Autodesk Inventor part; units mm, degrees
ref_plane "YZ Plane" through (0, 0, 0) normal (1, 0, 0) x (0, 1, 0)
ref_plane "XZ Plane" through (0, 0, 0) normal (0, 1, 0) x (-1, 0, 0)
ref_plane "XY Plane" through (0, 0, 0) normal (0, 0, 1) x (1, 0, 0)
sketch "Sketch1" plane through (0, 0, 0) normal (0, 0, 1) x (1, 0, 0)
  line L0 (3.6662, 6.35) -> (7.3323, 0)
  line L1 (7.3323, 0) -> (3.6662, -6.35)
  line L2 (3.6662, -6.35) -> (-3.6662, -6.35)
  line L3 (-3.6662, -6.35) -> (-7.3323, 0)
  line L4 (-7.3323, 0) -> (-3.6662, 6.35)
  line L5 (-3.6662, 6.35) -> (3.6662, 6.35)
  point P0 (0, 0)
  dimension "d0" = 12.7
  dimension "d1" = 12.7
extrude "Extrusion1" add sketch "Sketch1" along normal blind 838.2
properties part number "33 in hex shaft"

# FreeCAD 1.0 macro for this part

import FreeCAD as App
import Part
import Sketcher
Q = App.Units.Quantity


def add_polygon(sketch, points):
    """Adds a closed chain of lines whose ends are joined by coincident constraints."""
    first, n = sketch.GeometryCount, len(points)
    for a, b in zip(points, points[1:] + points[:1]):
        sketch.addGeometry(Part.LineSegment(App.Vector(*a, 0), App.Vector(*b, 0)), False)
    for i in range(n):
        sketch.addConstraint(Sketcher.Constraint("Coincident", first + i, 2, first + (i + 1) % n, 1))

doc = App.newDocument("Part")
body = doc.addObject("PartDesign::Body", "Body")

sketch1 = body.newObject("Sketcher::SketchObject", "Sketch")
sketch1.AttachmentSupport = (doc.getObject("XY_Plane"), [""])
sketch1.MapMode = "FlatFace"
add_polygon(sketch1, [(7, 0), (4, 6), (-4, 6), (-7, 0), (-4, -6), (4, -6)])
sketch1.addConstraint(Sketcher.Constraint("Horizontal", 1))
sketch1.addConstraint(Sketcher.Constraint("Horizontal", 4))
sketch1.addConstraint(Sketcher.Constraint("Symmetric", 0, 2, 3, 2, -1, 1))
sketch1.addConstraint(Sketcher.Constraint("Symmetric", 2, 2, 5, 2, -1, 1))
sketch1.addConstraint(Sketcher.Constraint("PointOnObject", 2, 2, -1))
sketch1.addConstraint(Sketcher.Constraint("Parallel", 2, 5))
sketch1.addConstraint(Sketcher.Constraint("Vertical", 1, 2, 3, 2))
sketch1.addConstraint(Sketcher.Constraint("DistanceY", 3, 2, 1, 2, Q("0.5 in")))
sketch1.addConstraint(Sketcher.Constraint("Angle", 0, Q("119.9995 deg")))
sketch1.addConstraint(Sketcher.Constraint("DistanceX", 2, 2, 0, 2, Q("0.433 in")))
pad1 = body.newObject("PartDesign::Pad", "Pad")
pad1.Profile = sketch1
pad1.Length = Q("33 in")

doc.recompute()
